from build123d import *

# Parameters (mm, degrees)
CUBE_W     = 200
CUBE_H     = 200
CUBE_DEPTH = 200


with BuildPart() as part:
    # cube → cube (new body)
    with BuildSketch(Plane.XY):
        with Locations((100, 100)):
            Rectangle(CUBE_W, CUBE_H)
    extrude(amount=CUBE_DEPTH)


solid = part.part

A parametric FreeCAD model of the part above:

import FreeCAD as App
import Part
import Sketcher

V = App.Vector

doc = App.newDocument("Part")
body = doc.addObject("PartDesign::Body", "Body")

sketch1 = body.newObject("Sketcher::SketchObject", "Sketch")
sketch1.AttachmentSupport = (doc.getObject("XY_Plane"), [""])
sketch1.MapMode = "FlatFace"
sketch1.addGeometry([
    Part.LineSegment(V(0, 200, 0), V(0, 0, 0)),
    Part.LineSegment(V(0, 0, 0), V(200, 0, 0)),
    Part.LineSegment(V(200, 0, 0), V(200, 200, 0)),
    Part.LineSegment(V(200, 200, 0), V(0, 200, 0)),
], False)
sketch1.addConstraint([
    Sketcher.Constraint("Coincident", 0, 2, 1, 1),
    Sketcher.Constraint("Coincident", 1, 2, 2, 1),
    Sketcher.Constraint("Coincident", 2, 2, 3, 1),
    Sketcher.Constraint("Coincident", 3, 2, 0, 1),
    Sketcher.Constraint("Vertical", 0),
    Sketcher.Constraint("Horizontal", 1),
    Sketcher.Constraint("Vertical", 2),
    Sketcher.Constraint("Horizontal", 3),
    Sketcher.Constraint("Coincident", 0, 2, -1, 1),
    Sketcher.Constraint("Equal", 3, 0),
    Sketcher.Constraint("DistanceX", 1, 1, 1, 2, 200.0),
])
pad1 = body.newObject("PartDesign::Pad", "Pad")
pad1.Profile = sketch1
pad1.Length = 200

doc.recompute()
